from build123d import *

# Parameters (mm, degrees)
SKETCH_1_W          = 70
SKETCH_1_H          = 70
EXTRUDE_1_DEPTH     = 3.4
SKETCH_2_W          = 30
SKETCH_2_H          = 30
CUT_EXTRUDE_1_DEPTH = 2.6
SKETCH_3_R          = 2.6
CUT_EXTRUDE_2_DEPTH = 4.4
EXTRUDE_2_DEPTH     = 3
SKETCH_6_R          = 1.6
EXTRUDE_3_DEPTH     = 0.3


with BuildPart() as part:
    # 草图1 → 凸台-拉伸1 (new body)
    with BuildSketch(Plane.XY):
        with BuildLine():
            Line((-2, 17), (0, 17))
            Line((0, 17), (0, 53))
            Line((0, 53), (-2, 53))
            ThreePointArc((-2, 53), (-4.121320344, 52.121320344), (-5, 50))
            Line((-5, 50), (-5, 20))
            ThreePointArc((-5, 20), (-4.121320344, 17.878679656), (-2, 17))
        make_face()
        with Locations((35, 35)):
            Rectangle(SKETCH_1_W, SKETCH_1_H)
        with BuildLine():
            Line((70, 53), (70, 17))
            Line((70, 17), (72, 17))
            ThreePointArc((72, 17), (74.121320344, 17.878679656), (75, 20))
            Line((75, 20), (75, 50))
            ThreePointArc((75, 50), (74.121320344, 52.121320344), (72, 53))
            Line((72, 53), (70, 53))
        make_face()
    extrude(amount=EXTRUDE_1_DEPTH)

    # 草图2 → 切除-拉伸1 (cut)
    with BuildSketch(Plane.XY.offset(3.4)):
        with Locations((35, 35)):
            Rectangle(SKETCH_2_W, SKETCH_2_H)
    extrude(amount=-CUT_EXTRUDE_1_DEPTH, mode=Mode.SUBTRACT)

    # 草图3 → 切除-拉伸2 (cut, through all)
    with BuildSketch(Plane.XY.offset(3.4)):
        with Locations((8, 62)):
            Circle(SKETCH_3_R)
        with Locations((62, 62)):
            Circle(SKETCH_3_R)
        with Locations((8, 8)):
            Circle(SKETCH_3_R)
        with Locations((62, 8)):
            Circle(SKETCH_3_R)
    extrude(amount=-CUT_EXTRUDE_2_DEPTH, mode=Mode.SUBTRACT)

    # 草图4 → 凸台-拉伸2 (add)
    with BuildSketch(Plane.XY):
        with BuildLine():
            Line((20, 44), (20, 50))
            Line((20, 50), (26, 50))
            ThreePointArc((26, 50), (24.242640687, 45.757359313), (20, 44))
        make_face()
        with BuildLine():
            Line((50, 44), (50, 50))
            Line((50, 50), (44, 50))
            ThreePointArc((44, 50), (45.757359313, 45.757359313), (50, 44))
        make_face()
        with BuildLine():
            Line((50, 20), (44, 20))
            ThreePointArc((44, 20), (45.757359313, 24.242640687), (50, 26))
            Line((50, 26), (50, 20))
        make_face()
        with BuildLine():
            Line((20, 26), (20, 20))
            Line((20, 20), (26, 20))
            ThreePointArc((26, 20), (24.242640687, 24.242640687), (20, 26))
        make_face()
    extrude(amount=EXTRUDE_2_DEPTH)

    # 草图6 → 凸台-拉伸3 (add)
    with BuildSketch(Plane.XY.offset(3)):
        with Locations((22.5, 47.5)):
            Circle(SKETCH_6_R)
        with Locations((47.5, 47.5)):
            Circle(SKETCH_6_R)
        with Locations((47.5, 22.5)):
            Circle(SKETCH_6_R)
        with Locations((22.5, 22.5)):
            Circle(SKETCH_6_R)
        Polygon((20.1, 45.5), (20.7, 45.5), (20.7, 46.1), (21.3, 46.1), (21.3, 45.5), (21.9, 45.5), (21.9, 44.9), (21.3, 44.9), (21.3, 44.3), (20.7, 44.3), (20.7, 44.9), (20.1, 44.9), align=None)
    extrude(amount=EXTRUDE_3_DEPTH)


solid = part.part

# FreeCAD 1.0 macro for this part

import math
import FreeCAD as App
import Part
import Sketcher


def add_polygon(sketch, points):
    """Adds a closed chain of lines whose ends are joined by coincident constraints."""
    first, n = sketch.GeometryCount, len(points)
    for a, b in zip(points, points[1:] + points[:1]):
        sketch.addGeometry(Part.LineSegment(App.Vector(*a, 0), App.Vector(*b, 0)), False)
    for i in range(n):
        sketch.addConstraint(Sketcher.Constraint("Coincident", first + i, 2, first + (i + 1) % n, 1))

doc = App.newDocument("Part")
body = doc.addObject("PartDesign::Body", "Body")

sketch1 = body.newObject("Sketcher::SketchObject", "Sketch")
sketch1.AttachmentSupport = (doc.getObject("XY_Plane"), [""])
sketch1.MapMode = "FlatFace"
sketch1.addGeometry([
    Part.LineSegment(App.Vector(-2, 17, 0), App.Vector(0, 17, 0)),
    Part.LineSegment(App.Vector(0, 17, 0), App.Vector(0, 0, 0)),
    Part.LineSegment(App.Vector(0, 0, 0), App.Vector(70, 0, 0)),
    Part.LineSegment(App.Vector(70, 0, 0), App.Vector(70, 17, 0)),
    Part.LineSegment(App.Vector(70, 17, 0), App.Vector(72, 17, 0)),
    Part.ArcOfCircle(Part.Circle(App.Vector(72, 20, 0), App.Vector(0, 0, 1), 3), math.radians(-90), math.radians(0)),
    Part.LineSegment(App.Vector(75, 20, 0), App.Vector(75, 50, 0)),
    Part.ArcOfCircle(Part.Circle(App.Vector(72, 50, 0), App.Vector(0, 0, 1), 3), math.radians(0), math.radians(90)),
    Part.LineSegment(App.Vector(72, 53, 0), App.Vector(70, 53, 0)),
    Part.LineSegment(App.Vector(70, 53, 0), App.Vector(70, 70, 0)),
    Part.LineSegment(App.Vector(70, 70, 0), App.Vector(0, 70, 0)),
    Part.LineSegment(App.Vector(0, 70, 0), App.Vector(0, 53, 0)),
    Part.LineSegment(App.Vector(0, 53, 0), App.Vector(-2, 53, 0)),
    Part.ArcOfCircle(Part.Circle(App.Vector(-2, 50, 0), App.Vector(0, 0, 1), 3), math.radians(90), math.radians(180)),
    Part.LineSegment(App.Vector(-5, 50, 0), App.Vector(-5, 20, 0)),
    Part.ArcOfCircle(Part.Circle(App.Vector(-2, 20, 0), App.Vector(0, 0, 1), 3), math.radians(180), math.radians(270)),
], False)
sketch1.addConstraint([
    Sketcher.Constraint("Coincident", 0, 2, 1, 1),
    Sketcher.Constraint("Coincident", 1, 2, 2, 1),
    Sketcher.Constraint("Coincident", 2, 2, 3, 1),
    Sketcher.Constraint("Coincident", 3, 2, 4, 1),
    Sketcher.Constraint("Tangent", 4, 2, 5, 1),
    Sketcher.Constraint("Tangent", 5, 2, 6, 1),
    Sketcher.Constraint("Tangent", 6, 2, 7, 1),
    Sketcher.Constraint("Tangent", 7, 2, 8, 1),
    Sketcher.Constraint("Coincident", 8, 2, 9, 1),
    Sketcher.Constraint("Coincident", 9, 2, 10, 1),
    Sketcher.Constraint("Coincident", 10, 2, 11, 1),
    Sketcher.Constraint("Coincident", 11, 2, 12, 1),
    Sketcher.Constraint("Tangent", 12, 2, 13, 1),
    Sketcher.Constraint("Tangent", 13, 2, 14, 1),
    Sketcher.Constraint("Tangent", 14, 2, 15, 1),
    Sketcher.Constraint("Tangent", 15, 2, 0, 1),
    Sketcher.Constraint("Horizontal", 0),
    Sketcher.Constraint("Vertical", 1),
    Sketcher.Constraint("Horizontal", 2),
    Sketcher.Constraint("Vertical", 3),
    Sketcher.Constraint("Horizontal", 4),
    Sketcher.Constraint("Vertical", 6),
    Sketcher.Constraint("Horizontal", 8),
    Sketcher.Constraint("Vertical", 9),
    Sketcher.Constraint("Horizontal", 10),
    Sketcher.Constraint("Vertical", 11),
    Sketcher.Constraint("Horizontal", 12),
    Sketcher.Constraint("Vertical", 14),
    Sketcher.Constraint("Coincident", 1, 2, -1, 1),
    Sketcher.Constraint("Equal", 5, 7),
    Sketcher.Constraint("Equal", 7, 13),
    Sketcher.Constraint("Equal", 13, 15),
    Sketcher.Constraint("PointOnObject", 10, 2, -2),
    Sketcher.Constraint("Horizontal", 7, 3, 13, 3),
    Sketcher.Constraint("Horizontal", 5, 3, 15, 3),
    Sketcher.Constraint("Vertical", 3, 2, 8, 2),
    Sketcher.Constraint("Equal", 0, 4),
    Sketcher.Constraint("Equal", 3, 9),
    Sketcher.Constraint("Radius", 5, 3.0),
    Sketcher.Constraint("DistanceX", 0, 1, 0, 2, 2.0),
    Sketcher.Constraint("DistanceX", 2, 1, 2, 2, 70.0),
    Sketcher.Constraint("DistanceY", 1, 2, 1, 1, 17.0),
    Sketcher.Constraint("DistanceY", 6, 1, 6, 2, 30.0),
])
pad1 = body.newObject("PartDesign::Pad", "Pad")
pad1.Profile = sketch1
pad1.Length = 3.4

sketch2 = body.newObject("Sketcher::SketchObject", "Sketch001")
sketch2.AttachmentSupport = (doc.getObject("XY_Plane"), [""])
sketch2.MapMode = "FlatFace"
sketch2.AttachmentOffset = App.Placement(App.Vector(0, 0, 3.4), App.Rotation())
add_polygon(sketch2, [(20, 50), (20, 20), (50, 20), (50, 50)])
sketch2.addConstraint([
    Sketcher.Constraint("Vertical", 0),
    Sketcher.Constraint("Horizontal", 1),
    Sketcher.Constraint("Vertical", 2),
    Sketcher.Constraint("Horizontal", 3),
    Sketcher.Constraint("Equal", 3, 0),
    Sketcher.Constraint("DistanceX", 1, 1, 1, 2, 30.0),
    Sketcher.Constraint("DistanceX", -1, 1, 0, 2, 20.0),
    Sketcher.Constraint("DistanceY", -1, 1, 0, 2, 20.0),
])
pocket1 = body.newObject("PartDesign::Pocket", "Pocket")
pocket1.Profile = sketch2
pocket1.Length = 2.6

sketch3 = body.newObject("Sketcher::SketchObject", "Sketch002")
sketch3.AttachmentSupport = (doc.getObject("XY_Plane"), [""])
sketch3.MapMode = "FlatFace"
sketch3.AttachmentOffset = App.Placement(App.Vector(0, 0, 3.4), App.Rotation())
sketch3.addGeometry([
    Part.Circle(App.Vector(8, 62, 0), App.Vector(0, 0, 1), 2.6),
    Part.Circle(App.Vector(62, 62, 0), App.Vector(0, 0, 1), 2.6),
    Part.Circle(App.Vector(8, 8, 0), App.Vector(0, 0, 1), 2.6),
    Part.Circle(App.Vector(62, 8, 0), App.Vector(0, 0, 1), 2.6),
], False)
sketch3.addConstraint([
    Sketcher.Constraint("Equal", 0, 1),
    Sketcher.Constraint("Equal", 1, 2),
    Sketcher.Constraint("Equal", 2, 3),
    Sketcher.Constraint("Horizontal", 0, 3, 1, 3),
    Sketcher.Constraint("Horizontal", 2, 3, 3, 3),
    Sketcher.Constraint("Vertical", 0, 3, 2, 3),
    Sketcher.Constraint("Vertical", 1, 3, 3, 3),
    Sketcher.Constraint("Diameter", 0, 5.2),
    Sketcher.Constraint("DistanceX", -1, 1, 0, 3, 8.0),
    Sketcher.Constraint("DistanceY", -1, 1, 0, 3, 62.0),
    Sketcher.Constraint("DistanceX", -1, 1, 1, 3, 62.0),
    Sketcher.Constraint("DistanceY", -1, 1, 2, 3, 8.0),
])
pocket2 = body.newObject("PartDesign::Pocket", "Pocket001")
pocket2.Profile = sketch3
pocket2.Type = "ThroughAll"

sketch4 = body.newObject("Sketcher::SketchObject", "Sketch003")
sketch4.AttachmentSupport = (doc.getObject("XY_Plane"), [""])
sketch4.MapMode = "FlatFace"
sketch4.addGeometry([
    Part.LineSegment(App.Vector(20, 50, 0), App.Vector(20, 44, 0)),
    Part.ArcOfCircle(Part.Circle(App.Vector(20, 50, 0), App.Vector(0, 0, 1), 6), math.radians(-90), math.radians(0)),
    Part.LineSegment(App.Vector(26, 50, 0), App.Vector(20, 50, 0)),
    Part.LineSegment(App.Vector(50, 44, 0), App.Vector(50, 50, 0)),
    Part.LineSegment(App.Vector(50, 50, 0), App.Vector(44, 50, 0)),
    Part.ArcOfCircle(Part.Circle(App.Vector(50, 50, 0), App.Vector(0, 0, 1), 6), math.radians(180), math.radians(270)),
    Part.LineSegment(App.Vector(44, 20, 0), App.Vector(50, 20, 0)),
    Part.LineSegment(App.Vector(50, 20, 0), App.Vector(50, 26, 0)),
    Part.ArcOfCircle(Part.Circle(App.Vector(50, 20, 0), App.Vector(0, 0, 1), 6), math.radians(90), math.radians(180)),
    Part.LineSegment(App.Vector(20, 26, 0), App.Vector(20, 20, 0)),
    Part.LineSegment(App.Vector(20, 20, 0), App.Vector(26, 20, 0)),
    Part.ArcOfCircle(Part.Circle(App.Vector(20, 20, 0), App.Vector(0, 0, 1), 6), math.radians(0), math.radians(90)),
], False)
sketch4.addConstraint([
    Sketcher.Constraint("Coincident", 0, 2, 1, 1),
    Sketcher.Constraint("Coincident", 1, 2, 2, 1),
    Sketcher.Constraint("Coincident", 2, 2, 0, 1),
    Sketcher.Constraint("Coincident", 3, 2, 4, 1),
    Sketcher.Constraint("Coincident", 4, 2, 5, 1),
    Sketcher.Constraint("Coincident", 5, 2, 3, 1),
    Sketcher.Constraint("Coincident", 6, 2, 7, 1),
    Sketcher.Constraint("Coincident", 7, 2, 8, 1),
    Sketcher.Constraint("Coincident", 8, 2, 6, 1),
    Sketcher.Constraint("Coincident", 9, 2, 10, 1),
    Sketcher.Constraint("Coincident", 10, 2, 11, 1),
    Sketcher.Constraint("Coincident", 11, 2, 9, 1),
    Sketcher.Constraint("Vertical", 0),
    Sketcher.Constraint("Horizontal", 2),
    Sketcher.Constraint("Vertical", 3),
    Sketcher.Constraint("Horizontal", 4),
    Sketcher.Constraint("Horizontal", 6),
    Sketcher.Constraint("Vertical", 7),
    Sketcher.Constraint("Vertical", 9),
    Sketcher.Constraint("Horizontal", 10),
    Sketcher.Constraint("Coincident", 2, 2, 1, 3),
    Sketcher.Constraint("Coincident", 3, 2, 5, 3),
    Sketcher.Constraint("Coincident", 6, 2, 8, 3),
    Sketcher.Constraint("Coincident", 9, 2, 11, 3),
    Sketcher.Constraint("Equal", 1, 5),
    Sketcher.Constraint("Equal", 5, 8),
    Sketcher.Constraint("Equal", 8, 11),
    Sketcher.Constraint("Horizontal", 1, 3, 5, 3),
    Sketcher.Constraint("Horizontal", 8, 3, 11, 3),
    Sketcher.Constraint("Vertical", 5, 3, 8, 3),
    Sketcher.Constraint("Vertical", 1, 3, 11, 3),
    Sketcher.Constraint("Radius", 1, 6.0),
    Sketcher.Constraint("DistanceX", -1, 1, 1, 3, 20.0),
    Sketcher.Constraint("DistanceY", -1, 1, 1, 3, 50.0),
    Sketcher.Constraint("DistanceX", -1, 1, 5, 3, 50.0),
    Sketcher.Constraint("DistanceY", -1, 1, 8, 3, 20.0),
])
pad2 = body.newObject("PartDesign::Pad", "Pad001")
pad2.Profile = sketch4
pad2.Length = 3

sketch5 = body.newObject("Sketcher::SketchObject", "Sketch004")
sketch5.AttachmentSupport = (doc.getObject("XY_Plane"), [""])
sketch5.MapMode = "FlatFace"
sketch5.AttachmentOffset = App.Placement(App.Vector(0, 0, 3), App.Rotation())
sketch5.addGeometry(Part.Circle(App.Vector(22.5, 47.5, 0), App.Vector(0, 0, 1), 1.6), False)
sketch5.addGeometry(Part.Circle(App.Vector(47.5, 47.5, 0), App.Vector(0, 0, 1), 1.6), False)
sketch5.addGeometry(Part.Circle(App.Vector(47.5, 22.5, 0), App.Vector(0, 0, 1), 1.6), False)
sketch5.addGeometry(Part.Circle(App.Vector(22.5, 22.5, 0), App.Vector(0, 0, 1), 1.6), False)
add_polygon(sketch5, [(20.7, 45.5), (20.1, 45.5), (20.1, 44.9), (20.7, 44.9), (20.7, 44.3), (21.3, 44.3), (21.3, 44.9), (21.9, 44.9), (21.9, 45.5), (21.3, 45.5), (21.3, 46.1), (20.7, 46.1)])
sketch5.addConstraint([
    Sketcher.Constraint("Horizontal", 4),
    Sketcher.Constraint("Vertical", 5),
    Sketcher.Constraint("Horizontal", 6),
    Sketcher.Constraint("Vertical", 7),
    Sketcher.Constraint("Horizontal", 8),
    Sketcher.Constraint("Vertical", 9),
    Sketcher.Constraint("Horizontal", 10),
    Sketcher.Constraint("Vertical", 11),
    Sketcher.Constraint("Horizontal", 12),
    Sketcher.Constraint("Vertical", 13),
    Sketcher.Constraint("Horizontal", 14),
    Sketcher.Constraint("Vertical", 15),
    Sketcher.Constraint("Equal", 0, 1),
    Sketcher.Constraint("Equal", 1, 2),
    Sketcher.Constraint("Equal", 2, 3),
    Sketcher.Constraint("Horizontal", 0, 3, 1, 3),
    Sketcher.Constraint("Horizontal", 2, 3, 3, 3),
    Sketcher.Constraint("Horizontal", 6, 2, 9, 2),
    Sketcher.Constraint("Horizontal", 4, 2, 11, 2),
    Sketcher.Constraint("Vertical", 1, 3, 2, 3),
    Sketcher.Constraint("Vertical", 0, 3, 3, 3),
    Sketcher.Constraint("Vertical", 9, 2, 12, 2),
    Sketcher.Constraint("Vertical", 7, 2, 14, 2),
    Sketcher.Constraint("Equal", 6, 8),
    Sketcher.Constraint("Equal", 8, 10),
    Sketcher.Constraint("Equal", 14, 5),
    Sketcher.Constraint("Equal", 5, 7),
    Sketcher.Constraint("Equal", 11, 13),
    Sketcher.Constraint("Diameter", 0, 3.2),
    Sketcher.Constraint("DistanceX", 4, 2, 4, 1, 0.6),
    Sketcher.Constraint("DistanceX", 0, 3, 1, 3, 25.0),
    Sketcher.Constraint("DistanceY", 2, 3, 1, 3, 25.0),
    Sketcher.Constraint("DistanceY", 4, 2, 0, 3, 2.0),
    Sketcher.Constraint("DistanceX", -1, 1, 0, 3, 22.5),
    Sketcher.Constraint("DistanceY", -1, 1, 0, 3, 47.5),
    Sketcher.Constraint("DistanceX", -1, 1, 4, 2, 20.1),
])
pad3 = body.newObject("PartDesign::Pad", "Pad002")
pad3.Profile = sketch5
pad3.Length = 0.3

doc.recompute()
